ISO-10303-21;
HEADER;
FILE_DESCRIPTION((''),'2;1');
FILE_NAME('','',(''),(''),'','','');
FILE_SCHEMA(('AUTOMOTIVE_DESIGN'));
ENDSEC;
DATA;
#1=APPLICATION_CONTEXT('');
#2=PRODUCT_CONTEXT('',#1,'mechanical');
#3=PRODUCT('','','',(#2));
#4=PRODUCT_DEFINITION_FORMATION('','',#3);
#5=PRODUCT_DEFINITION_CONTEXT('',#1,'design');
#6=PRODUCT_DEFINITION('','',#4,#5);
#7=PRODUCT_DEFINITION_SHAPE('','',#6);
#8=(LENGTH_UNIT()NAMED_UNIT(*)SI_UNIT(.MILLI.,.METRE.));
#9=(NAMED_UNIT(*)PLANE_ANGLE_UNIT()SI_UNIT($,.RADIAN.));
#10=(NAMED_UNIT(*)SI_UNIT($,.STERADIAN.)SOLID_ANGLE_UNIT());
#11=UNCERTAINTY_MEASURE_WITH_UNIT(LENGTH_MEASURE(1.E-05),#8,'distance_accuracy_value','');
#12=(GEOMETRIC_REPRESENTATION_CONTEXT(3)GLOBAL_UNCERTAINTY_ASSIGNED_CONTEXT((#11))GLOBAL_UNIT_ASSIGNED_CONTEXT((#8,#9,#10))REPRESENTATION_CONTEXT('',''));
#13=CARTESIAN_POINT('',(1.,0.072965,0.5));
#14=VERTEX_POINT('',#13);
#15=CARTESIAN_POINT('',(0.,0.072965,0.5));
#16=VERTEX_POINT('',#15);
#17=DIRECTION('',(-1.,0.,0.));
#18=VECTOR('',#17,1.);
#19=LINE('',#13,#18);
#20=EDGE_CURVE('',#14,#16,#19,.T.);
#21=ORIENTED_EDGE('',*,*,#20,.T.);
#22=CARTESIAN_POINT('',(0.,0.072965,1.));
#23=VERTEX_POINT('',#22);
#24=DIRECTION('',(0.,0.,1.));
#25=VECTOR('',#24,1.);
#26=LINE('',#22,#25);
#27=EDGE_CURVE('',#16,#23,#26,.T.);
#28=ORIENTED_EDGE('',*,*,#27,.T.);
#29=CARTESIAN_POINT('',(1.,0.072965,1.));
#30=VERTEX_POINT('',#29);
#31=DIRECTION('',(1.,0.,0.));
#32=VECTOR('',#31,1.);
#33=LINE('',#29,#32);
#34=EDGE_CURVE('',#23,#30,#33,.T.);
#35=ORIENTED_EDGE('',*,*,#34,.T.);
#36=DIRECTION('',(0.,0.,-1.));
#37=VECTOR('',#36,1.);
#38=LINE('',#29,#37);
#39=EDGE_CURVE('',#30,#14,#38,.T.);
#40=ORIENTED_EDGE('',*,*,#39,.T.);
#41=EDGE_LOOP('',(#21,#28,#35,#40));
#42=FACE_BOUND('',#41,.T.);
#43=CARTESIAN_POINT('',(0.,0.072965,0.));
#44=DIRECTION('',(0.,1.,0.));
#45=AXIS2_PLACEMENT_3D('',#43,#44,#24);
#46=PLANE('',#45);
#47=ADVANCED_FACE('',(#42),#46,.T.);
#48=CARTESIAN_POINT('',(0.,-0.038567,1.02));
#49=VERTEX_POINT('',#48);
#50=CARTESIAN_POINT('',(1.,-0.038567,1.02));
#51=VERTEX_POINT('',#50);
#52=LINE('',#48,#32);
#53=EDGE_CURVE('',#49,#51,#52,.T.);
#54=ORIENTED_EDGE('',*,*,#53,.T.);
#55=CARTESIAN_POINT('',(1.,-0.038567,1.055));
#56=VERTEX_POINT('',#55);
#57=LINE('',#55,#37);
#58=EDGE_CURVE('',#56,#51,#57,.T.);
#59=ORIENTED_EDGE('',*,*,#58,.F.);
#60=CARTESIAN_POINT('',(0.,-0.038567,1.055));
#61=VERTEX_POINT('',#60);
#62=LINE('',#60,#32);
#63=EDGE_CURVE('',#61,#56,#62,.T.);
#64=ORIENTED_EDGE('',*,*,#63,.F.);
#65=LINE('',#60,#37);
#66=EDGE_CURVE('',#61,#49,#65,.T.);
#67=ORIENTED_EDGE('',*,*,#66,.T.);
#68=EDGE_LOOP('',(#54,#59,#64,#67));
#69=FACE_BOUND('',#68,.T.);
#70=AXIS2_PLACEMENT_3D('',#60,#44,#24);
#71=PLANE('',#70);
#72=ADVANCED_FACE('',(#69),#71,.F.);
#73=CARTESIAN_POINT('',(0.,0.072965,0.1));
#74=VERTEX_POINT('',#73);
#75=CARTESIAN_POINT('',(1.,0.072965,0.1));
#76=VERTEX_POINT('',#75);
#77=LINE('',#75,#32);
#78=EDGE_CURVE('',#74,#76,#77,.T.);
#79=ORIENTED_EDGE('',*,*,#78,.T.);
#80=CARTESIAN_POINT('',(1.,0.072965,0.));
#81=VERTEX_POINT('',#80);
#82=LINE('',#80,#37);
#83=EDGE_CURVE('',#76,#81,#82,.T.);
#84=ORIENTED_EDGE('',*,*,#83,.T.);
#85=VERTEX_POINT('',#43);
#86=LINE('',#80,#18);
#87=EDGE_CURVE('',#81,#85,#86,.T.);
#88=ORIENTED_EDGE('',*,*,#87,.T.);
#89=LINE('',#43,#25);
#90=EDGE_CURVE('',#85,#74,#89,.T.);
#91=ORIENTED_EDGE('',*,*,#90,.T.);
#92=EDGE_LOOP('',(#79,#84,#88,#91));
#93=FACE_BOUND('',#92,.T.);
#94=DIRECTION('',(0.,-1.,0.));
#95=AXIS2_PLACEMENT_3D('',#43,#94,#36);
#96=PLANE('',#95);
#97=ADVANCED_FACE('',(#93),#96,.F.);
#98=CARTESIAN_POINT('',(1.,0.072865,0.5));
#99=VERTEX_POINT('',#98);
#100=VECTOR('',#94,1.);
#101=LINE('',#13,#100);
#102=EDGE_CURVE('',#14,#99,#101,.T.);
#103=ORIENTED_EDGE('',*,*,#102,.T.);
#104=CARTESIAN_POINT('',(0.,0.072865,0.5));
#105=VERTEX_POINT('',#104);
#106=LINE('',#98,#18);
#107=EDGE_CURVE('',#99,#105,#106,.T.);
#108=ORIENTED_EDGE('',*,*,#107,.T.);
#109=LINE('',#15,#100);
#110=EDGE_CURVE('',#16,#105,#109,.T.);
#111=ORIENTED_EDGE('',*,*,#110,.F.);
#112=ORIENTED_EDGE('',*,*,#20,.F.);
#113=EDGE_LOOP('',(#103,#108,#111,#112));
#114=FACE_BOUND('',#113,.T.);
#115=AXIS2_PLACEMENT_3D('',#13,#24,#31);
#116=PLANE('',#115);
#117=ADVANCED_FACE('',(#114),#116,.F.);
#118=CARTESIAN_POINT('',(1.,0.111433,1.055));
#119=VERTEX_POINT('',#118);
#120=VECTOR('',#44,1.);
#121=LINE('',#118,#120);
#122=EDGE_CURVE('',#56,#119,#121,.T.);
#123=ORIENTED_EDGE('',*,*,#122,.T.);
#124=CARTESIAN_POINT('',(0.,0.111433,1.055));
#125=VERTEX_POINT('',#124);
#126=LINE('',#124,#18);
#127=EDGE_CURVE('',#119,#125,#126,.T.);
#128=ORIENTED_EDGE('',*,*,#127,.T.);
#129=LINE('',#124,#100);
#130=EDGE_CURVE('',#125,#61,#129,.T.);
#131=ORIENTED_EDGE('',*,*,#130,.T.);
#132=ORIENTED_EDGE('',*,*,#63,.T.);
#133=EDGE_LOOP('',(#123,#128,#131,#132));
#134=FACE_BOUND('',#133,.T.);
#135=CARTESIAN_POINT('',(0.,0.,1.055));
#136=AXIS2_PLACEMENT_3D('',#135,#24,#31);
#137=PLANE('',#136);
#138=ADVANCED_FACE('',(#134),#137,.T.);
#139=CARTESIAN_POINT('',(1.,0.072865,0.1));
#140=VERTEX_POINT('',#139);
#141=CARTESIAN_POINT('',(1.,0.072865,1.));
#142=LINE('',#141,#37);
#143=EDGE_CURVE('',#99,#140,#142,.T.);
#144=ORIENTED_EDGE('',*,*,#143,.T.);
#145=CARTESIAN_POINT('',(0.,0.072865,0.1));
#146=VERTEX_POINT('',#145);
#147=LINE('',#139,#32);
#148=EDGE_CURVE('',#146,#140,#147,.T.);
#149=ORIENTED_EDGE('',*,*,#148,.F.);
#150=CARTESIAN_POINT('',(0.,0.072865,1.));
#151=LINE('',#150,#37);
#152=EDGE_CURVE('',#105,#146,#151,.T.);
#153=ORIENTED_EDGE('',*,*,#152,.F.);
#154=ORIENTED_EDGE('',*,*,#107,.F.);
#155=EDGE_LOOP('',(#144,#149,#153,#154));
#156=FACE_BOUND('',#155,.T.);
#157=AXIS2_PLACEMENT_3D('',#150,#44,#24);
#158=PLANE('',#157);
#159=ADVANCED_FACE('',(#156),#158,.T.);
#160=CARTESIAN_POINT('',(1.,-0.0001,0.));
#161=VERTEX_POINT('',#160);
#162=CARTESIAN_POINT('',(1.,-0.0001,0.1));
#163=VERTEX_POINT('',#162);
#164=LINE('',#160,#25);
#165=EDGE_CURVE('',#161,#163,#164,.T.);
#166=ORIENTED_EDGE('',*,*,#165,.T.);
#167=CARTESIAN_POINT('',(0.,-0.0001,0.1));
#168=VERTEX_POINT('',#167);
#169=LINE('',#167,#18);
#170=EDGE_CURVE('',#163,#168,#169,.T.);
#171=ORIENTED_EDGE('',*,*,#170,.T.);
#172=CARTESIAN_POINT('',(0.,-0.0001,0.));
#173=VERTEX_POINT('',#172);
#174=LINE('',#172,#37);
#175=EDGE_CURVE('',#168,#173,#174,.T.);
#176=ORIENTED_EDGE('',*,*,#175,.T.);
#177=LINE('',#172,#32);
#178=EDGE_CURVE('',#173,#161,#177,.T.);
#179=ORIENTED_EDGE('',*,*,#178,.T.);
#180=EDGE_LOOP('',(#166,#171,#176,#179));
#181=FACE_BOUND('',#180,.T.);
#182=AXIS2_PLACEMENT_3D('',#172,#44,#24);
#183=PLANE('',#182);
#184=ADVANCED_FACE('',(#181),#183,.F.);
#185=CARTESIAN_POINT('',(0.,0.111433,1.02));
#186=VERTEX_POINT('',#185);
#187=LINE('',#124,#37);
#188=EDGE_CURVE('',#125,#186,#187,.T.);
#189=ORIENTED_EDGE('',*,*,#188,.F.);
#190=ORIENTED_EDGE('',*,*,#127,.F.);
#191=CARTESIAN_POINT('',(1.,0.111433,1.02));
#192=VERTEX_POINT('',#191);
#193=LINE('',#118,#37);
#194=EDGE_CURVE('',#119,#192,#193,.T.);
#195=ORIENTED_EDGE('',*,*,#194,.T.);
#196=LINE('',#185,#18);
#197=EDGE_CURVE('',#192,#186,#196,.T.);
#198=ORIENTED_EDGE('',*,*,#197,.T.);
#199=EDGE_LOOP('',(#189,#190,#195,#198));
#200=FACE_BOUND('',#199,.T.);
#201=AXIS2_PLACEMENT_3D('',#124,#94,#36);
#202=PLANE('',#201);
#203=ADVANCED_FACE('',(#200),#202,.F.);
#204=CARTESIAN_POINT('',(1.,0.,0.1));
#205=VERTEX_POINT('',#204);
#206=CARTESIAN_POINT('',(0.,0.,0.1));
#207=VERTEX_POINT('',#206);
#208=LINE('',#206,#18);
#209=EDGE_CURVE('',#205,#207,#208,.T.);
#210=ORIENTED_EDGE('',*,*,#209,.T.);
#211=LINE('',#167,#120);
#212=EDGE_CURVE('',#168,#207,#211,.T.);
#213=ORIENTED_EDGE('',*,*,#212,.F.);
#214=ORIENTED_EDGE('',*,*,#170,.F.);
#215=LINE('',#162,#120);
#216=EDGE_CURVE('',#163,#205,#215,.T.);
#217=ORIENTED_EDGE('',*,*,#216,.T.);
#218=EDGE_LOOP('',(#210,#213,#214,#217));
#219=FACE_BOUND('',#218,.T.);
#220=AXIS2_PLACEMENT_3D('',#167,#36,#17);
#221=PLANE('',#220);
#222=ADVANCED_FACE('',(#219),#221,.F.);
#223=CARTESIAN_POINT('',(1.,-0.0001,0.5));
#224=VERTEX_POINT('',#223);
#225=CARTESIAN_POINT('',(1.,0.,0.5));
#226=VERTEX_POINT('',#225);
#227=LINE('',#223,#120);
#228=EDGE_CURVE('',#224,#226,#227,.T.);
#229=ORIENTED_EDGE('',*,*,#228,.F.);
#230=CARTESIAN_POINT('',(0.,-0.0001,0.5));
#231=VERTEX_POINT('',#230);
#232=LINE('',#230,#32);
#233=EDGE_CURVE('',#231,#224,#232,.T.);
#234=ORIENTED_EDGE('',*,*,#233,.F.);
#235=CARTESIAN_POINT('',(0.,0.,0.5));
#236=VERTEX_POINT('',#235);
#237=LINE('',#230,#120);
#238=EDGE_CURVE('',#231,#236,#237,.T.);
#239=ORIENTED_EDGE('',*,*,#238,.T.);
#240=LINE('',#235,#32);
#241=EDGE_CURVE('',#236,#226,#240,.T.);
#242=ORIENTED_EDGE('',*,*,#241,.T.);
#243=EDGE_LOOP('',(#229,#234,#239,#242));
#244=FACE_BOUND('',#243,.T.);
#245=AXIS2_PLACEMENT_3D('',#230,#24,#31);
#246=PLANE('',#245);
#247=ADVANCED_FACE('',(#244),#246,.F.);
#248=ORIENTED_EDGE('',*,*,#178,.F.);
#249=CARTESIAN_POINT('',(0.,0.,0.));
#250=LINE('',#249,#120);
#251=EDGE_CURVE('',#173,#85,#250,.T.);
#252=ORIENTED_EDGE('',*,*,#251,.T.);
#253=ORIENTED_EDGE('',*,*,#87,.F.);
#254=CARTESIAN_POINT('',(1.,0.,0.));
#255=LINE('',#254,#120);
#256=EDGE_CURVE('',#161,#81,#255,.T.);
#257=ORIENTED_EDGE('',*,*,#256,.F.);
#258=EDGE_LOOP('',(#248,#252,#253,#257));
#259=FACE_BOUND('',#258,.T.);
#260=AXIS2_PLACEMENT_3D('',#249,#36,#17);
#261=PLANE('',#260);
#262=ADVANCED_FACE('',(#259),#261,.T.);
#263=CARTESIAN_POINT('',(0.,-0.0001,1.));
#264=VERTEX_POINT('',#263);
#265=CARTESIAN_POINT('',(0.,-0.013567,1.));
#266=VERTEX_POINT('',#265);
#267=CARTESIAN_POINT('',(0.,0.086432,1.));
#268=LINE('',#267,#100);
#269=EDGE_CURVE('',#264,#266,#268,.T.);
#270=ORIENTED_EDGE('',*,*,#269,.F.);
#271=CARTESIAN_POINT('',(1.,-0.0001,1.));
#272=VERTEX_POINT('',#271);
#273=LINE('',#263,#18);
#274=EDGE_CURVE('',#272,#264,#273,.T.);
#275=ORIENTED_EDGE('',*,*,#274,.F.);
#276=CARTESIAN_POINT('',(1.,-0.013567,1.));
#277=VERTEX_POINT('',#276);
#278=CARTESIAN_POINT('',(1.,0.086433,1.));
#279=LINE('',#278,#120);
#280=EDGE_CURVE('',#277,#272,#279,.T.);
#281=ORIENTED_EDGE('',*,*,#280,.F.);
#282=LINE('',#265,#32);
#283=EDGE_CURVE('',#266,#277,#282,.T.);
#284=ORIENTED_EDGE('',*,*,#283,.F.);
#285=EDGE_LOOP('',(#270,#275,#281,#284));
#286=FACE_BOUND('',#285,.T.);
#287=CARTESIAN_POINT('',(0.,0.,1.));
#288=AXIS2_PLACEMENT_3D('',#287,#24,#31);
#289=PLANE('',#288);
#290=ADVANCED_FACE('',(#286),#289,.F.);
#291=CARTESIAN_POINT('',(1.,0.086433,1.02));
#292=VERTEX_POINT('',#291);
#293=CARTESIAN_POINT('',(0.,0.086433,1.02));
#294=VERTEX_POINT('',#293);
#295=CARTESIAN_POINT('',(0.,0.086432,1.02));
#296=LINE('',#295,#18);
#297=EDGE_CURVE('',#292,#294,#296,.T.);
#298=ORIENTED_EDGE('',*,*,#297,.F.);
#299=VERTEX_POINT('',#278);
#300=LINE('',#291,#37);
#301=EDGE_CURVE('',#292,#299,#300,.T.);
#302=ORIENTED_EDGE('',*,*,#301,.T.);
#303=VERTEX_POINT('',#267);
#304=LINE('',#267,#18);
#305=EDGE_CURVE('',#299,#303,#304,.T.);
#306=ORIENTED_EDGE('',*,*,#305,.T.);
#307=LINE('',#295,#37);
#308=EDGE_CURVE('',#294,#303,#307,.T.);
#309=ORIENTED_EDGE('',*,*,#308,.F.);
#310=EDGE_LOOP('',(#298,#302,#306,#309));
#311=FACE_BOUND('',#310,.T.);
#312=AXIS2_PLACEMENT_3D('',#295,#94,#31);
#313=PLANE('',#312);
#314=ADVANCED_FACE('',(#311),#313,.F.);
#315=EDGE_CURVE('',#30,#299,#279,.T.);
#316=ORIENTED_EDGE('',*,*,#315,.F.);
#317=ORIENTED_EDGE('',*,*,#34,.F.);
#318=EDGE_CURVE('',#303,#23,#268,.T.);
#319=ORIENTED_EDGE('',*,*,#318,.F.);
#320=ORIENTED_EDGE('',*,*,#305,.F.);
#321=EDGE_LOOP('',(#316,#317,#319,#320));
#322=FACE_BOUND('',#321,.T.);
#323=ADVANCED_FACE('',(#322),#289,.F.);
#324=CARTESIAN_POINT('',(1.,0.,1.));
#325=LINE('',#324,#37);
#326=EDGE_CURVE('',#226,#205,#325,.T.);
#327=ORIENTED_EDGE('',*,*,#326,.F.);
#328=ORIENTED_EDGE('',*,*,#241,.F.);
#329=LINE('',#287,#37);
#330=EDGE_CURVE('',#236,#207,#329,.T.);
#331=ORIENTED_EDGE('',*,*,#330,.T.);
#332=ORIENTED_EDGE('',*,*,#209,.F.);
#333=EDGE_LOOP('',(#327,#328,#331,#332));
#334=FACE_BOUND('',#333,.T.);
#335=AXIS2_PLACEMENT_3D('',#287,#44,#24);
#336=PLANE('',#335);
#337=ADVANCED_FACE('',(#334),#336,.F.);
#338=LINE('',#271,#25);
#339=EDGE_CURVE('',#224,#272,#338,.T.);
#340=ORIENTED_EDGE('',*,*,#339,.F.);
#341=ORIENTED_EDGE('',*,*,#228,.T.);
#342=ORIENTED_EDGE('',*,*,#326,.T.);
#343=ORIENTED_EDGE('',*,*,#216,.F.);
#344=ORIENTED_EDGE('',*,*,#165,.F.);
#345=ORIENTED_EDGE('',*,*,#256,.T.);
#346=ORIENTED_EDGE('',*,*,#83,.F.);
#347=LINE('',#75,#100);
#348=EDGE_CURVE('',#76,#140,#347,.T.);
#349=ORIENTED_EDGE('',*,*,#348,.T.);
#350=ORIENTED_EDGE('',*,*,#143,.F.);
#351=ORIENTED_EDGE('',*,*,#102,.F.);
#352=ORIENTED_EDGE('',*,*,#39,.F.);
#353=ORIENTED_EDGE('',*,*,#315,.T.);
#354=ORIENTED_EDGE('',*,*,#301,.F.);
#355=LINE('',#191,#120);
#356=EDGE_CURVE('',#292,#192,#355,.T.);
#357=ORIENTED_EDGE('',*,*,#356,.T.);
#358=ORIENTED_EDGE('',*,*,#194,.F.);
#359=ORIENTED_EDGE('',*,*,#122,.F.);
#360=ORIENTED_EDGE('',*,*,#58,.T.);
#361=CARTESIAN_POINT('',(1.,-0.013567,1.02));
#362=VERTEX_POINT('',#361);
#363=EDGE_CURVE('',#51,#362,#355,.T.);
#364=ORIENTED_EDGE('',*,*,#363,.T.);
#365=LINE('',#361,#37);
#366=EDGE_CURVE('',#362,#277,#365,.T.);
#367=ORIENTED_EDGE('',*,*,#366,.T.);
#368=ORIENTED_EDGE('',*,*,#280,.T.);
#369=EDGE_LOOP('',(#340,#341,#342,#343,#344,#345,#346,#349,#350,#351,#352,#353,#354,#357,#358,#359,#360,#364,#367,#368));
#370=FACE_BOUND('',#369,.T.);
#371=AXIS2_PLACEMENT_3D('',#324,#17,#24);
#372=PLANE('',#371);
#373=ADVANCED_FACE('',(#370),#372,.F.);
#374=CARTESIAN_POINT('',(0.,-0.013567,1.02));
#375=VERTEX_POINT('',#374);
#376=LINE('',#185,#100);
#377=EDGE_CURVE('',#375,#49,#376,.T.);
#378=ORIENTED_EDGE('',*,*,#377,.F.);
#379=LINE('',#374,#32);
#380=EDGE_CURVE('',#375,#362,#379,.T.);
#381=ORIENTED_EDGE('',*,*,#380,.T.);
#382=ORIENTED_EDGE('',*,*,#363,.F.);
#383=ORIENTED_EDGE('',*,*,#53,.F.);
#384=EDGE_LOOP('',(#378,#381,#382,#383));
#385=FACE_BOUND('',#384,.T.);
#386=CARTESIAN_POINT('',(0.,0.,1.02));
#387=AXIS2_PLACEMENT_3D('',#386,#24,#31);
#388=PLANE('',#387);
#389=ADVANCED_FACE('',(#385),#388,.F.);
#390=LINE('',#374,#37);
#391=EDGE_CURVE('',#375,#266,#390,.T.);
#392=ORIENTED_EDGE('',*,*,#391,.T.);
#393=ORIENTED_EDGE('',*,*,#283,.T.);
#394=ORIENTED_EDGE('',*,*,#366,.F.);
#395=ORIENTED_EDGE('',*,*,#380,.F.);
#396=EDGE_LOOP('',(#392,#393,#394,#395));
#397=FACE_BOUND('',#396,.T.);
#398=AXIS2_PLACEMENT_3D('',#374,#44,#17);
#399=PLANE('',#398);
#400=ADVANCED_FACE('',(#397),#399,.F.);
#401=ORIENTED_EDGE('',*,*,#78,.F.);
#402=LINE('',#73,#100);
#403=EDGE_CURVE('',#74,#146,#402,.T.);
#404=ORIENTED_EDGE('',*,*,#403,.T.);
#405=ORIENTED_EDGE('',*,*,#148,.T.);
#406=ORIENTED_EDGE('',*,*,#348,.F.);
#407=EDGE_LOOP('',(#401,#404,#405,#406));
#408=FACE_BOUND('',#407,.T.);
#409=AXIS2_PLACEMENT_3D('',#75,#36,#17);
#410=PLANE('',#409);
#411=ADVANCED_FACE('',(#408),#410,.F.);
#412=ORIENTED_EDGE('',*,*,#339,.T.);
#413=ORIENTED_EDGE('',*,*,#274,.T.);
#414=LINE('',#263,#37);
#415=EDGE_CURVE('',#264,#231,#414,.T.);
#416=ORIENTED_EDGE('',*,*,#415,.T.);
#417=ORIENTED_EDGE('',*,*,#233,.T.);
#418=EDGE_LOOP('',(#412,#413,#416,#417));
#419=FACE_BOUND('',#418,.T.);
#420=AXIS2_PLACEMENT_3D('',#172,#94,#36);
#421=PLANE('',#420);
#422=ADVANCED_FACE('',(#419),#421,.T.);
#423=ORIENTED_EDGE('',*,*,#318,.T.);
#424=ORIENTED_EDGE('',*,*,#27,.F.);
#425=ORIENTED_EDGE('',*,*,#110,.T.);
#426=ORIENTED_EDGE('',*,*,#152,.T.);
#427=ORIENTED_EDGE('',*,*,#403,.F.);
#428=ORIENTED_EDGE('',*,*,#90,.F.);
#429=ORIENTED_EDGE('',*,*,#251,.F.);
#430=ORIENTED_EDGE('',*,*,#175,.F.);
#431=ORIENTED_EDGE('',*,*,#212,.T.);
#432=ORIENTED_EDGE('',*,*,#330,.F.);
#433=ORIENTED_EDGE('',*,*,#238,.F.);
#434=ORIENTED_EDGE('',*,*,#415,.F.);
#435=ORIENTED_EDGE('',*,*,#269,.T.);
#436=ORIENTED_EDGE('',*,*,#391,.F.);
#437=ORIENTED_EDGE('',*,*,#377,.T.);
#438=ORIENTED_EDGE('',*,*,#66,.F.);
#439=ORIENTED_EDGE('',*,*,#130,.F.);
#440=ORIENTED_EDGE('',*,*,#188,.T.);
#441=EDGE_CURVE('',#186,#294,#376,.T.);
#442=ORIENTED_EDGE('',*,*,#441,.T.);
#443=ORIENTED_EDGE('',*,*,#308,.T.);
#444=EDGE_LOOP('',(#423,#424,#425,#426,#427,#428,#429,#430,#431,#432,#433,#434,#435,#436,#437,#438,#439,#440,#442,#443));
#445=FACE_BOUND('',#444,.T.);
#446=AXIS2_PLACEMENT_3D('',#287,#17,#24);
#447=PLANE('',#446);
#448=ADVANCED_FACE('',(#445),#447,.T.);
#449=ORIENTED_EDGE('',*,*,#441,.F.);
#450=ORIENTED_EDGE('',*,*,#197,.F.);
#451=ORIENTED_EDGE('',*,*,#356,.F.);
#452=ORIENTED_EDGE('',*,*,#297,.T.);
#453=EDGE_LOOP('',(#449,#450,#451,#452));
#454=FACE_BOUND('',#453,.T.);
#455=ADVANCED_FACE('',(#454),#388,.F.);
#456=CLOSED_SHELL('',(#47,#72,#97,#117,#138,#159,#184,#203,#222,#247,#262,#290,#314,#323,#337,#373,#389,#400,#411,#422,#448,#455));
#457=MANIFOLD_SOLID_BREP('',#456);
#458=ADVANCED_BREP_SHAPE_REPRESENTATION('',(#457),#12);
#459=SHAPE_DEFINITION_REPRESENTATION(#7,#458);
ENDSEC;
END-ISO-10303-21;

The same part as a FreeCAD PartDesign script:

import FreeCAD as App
import Part
import Sketcher
from FreeCAD import Vector
Q = App.Units.Quantity


def add_polygon(sketch, points):
    """Adds a closed chain of lines whose ends are joined by coincident constraints."""
    first, n = sketch.GeometryCount, len(points)
    for a, b in zip(points, points[1:] + points[:1]):
        sketch.addGeometry(Part.LineSegment(App.Vector(*a, 0), App.Vector(*b, 0)), False)
    for i in range(n):
        sketch.addConstraint(Sketcher.Constraint("Coincident", first + i, 2, first + (i + 1) % n, 1))

doc = App.newDocument("Part")
body = doc.addObject("PartDesign::Body", "Body")

# Sketch on XY plane
sketch1 = doc.addObject("Sketcher::SketchObject", "Sketch")
body.addObject(sketch1)
sketch1.AttachmentSupport = (doc.XY_Plane, [""])
sketch1.MapMode = "FlatFace"
add_polygon(sketch1, [(0, 0.072865), (0, 0), (1, 0), (1, 0.072865)])  # lines 0-3
sketch1.addConstraint([
    Sketcher.Constraint("Vertical", 0),
    Sketcher.Constraint("Horizontal", 1),
    Sketcher.Constraint("Vertical", 2),
    Sketcher.Constraint("Horizontal", 3),
    Sketcher.Constraint("Coincident", 0, 2, -1, 1),
    Sketcher.Constraint("DistanceX", 1, 1, 1, 2, Q("1 mm")),
    Sketcher.Constraint("DistanceY", 0, 2, 0, 1, Q("0.072865 mm")),
])
pad1 = doc.addObject("PartDesign::Pad", "Pad")
body.addObject(pad1)
pad1.Profile = sketch1
pad1.Length = 1

# Sketch on XY plane
sketch2 = doc.addObject("Sketcher::SketchObject", "Sketch001")
body.addObject(sketch2)
sketch2.AttachmentSupport = (doc.XY_Plane, [""])
sketch2.MapMode = "FlatFace"
sketch2.AttachmentOffset = App.Placement(Vector(0, 0, 1), App.Rotation())
add_polygon(sketch2, [(0, 0.086432), (0, -0.013567), (1, -0.013567), (1, 0.086432)])  # lines 0-3
sketch2.addConstraint([
    Sketcher.Constraint("Vertical", 0),
    Sketcher.Constraint("Horizontal", 1),
    Sketcher.Constraint("Vertical", 2),
    Sketcher.Constraint("Horizontal", 3),
    Sketcher.Constraint("PointOnObject", 0, 2, -2),
    Sketcher.Constraint("DistanceX", 1, 1, 1, 2, Q("1 mm")),
    Sketcher.Constraint("DistanceY", 0, 2, 0, 1, Q("0.1 mm")),
    Sketcher.Constraint("DistanceY", 0, 2, -1, 1, Q("0.013567 mm")),
])
pad2 = doc.addObject("PartDesign::Pad", "Pad001")
body.addObject(pad2)
pad2.Profile = sketch2
pad2.Length = 0.02

# Sketch on XY plane
sketch3 = doc.addObject("Sketcher::SketchObject", "Sketch002")
body.addObject(sketch3)
sketch3.AttachmentSupport = (doc.XY_Plane, [""])
sketch3.MapMode = "FlatFace"
sketch3.AttachmentOffset = App.Placement(Vector(0, 0, 1.02), App.Rotation())
add_polygon(sketch3, [(0, 0.111433), (0, -0.038567), (1, -0.038567), (1, 0.111433)])  # lines 0-3
sketch3.addConstraint([
    Sketcher.Constraint("Vertical", 0),
    Sketcher.Constraint("Horizontal", 1),
    Sketcher.Constraint("Vertical", 2),
    Sketcher.Constraint("Horizontal", 3),
    Sketcher.Constraint("PointOnObject", 0, 2, -2),
    Sketcher.Constraint("DistanceX", 1, 1, 1, 2, Q("1 mm")),
    Sketcher.Constraint("DistanceY", 0, 2, 0, 1, Q("0.15 mm")),
    Sketcher.Constraint("DistanceY", 0, 2, -1, 1, Q("0.038567 mm")),
])
pad3 = doc.addObject("PartDesign::Pad", "Pad002")
body.addObject(pad3)
pad3.Profile = sketch3
pad3.Length = 0.035

# Sketch on XZ plane
sketch4 = doc.addObject("Sketcher::SketchObject", "Sketch003")
body.addObject(sketch4)
sketch4.AttachmentSupport = (doc.XZ_Plane, [""])
sketch4.MapMode = "FlatFace"
add_polygon(sketch4, [(0, 0.1), (0, 0), (1, 0), (1, 0.1)])  # lines 0-3
add_polygon(sketch4, [(0, 1), (0, 0.5), (1, 0.5), (1, 1)])  # lines 4-7
sketch4.addConstraint([
    Sketcher.Constraint("Vertical", 0),
    Sketcher.Constraint("Horizontal", 1),
    Sketcher.Constraint("Vertical", 2),
    Sketcher.Constraint("Horizontal", 3),
    Sketcher.Constraint("Vertical", 4),
    Sketcher.Constraint("Horizontal", 5),
    Sketcher.Constraint("Vertical", 6),
    Sketcher.Constraint("Horizontal", 7),
    Sketcher.Constraint("Coincident", 0, 2, -1, 1),
    Sketcher.Constraint("PointOnObject", 4, 2, -2),
    Sketcher.Constraint("Vertical", 2, 2, 5, 2),
    Sketcher.Constraint("DistanceX", 1, 1, 1, 2, Q("1 mm")),
    Sketcher.Constraint("DistanceY", 0, 2, 0, 1, Q("0.1 mm")),
    Sketcher.Constraint("DistanceY", 4, 2, 4, 1, Q("0.5 mm")),
    Sketcher.Constraint("DistanceY", -1, 1, 6, 2, Q("1 mm")),
])
pad4 = doc.addObject("PartDesign::Pad", "Pad003")
body.addObject(pad4)
pad4.Profile = sketch4
pad4.Length = 0.0001

# Sketch on XZ plane
sketch5 = doc.addObject("Sketcher::SketchObject", "Sketch004")
body.addObject(sketch5)
sketch5.AttachmentSupport = (doc.XZ_Plane, [""])
sketch5.MapMode = "FlatFace"
sketch5.AttachmentOffset = App.Placement(Vector(0, 0, -0.072865), App.Rotation())
add_polygon(sketch5, [(0, 0), (0, 0.1), (1, 0.1), (1, 0)])  # lines 0-3
add_polygon(sketch5, [(0, 0.5), (0, 1), (1, 1), (1, 0.5)])  # lines 4-7
sketch5.addConstraint([
    Sketcher.Constraint("Vertical", 0),
    Sketcher.Constraint("Horizontal", 1),
    Sketcher.Constraint("Vertical", 2),
    Sketcher.Constraint("Horizontal", 3),
    Sketcher.Constraint("Vertical", 4),
    Sketcher.Constraint("Horizontal", 5),
    Sketcher.Constraint("Vertical", 6),
    Sketcher.Constraint("Horizontal", 7),
    Sketcher.Constraint("Coincident", 3, 2, -1, 1),
    Sketcher.Constraint("PointOnObject", 4, 2, -2),
    Sketcher.Constraint("Vertical", 2, 2, 5, 2),
    Sketcher.Constraint("DistanceX", 1, 1, 1, 2, Q("1 mm")),
    Sketcher.Constraint("DistanceY", 0, 1, 0, 2, Q("0.1 mm")),
    Sketcher.Constraint("DistanceY", 4, 1, 4, 2, Q("0.5 mm")),
    Sketcher.Constraint("DistanceY", -1, 1, 4, 2, Q("1 mm")),
])
pad5 = doc.addObject("PartDesign::Pad", "Pad004")
body.addObject(pad5)
pad5.Profile = sketch5
pad5.Length = 0.0001
pad5.Reversed = True

doc.recompute()
